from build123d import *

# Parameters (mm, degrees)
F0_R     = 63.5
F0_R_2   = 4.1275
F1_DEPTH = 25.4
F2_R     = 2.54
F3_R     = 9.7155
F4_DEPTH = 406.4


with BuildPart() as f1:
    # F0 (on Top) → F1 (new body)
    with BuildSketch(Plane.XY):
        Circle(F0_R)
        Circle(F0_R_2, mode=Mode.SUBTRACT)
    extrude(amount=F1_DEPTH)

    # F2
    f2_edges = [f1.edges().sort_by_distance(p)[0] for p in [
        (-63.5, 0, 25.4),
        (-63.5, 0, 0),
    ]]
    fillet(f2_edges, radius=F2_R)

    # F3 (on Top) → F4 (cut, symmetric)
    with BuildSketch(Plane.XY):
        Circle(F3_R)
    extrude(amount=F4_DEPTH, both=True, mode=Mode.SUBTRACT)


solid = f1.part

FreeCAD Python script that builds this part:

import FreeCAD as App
import Part
import Sketcher
Q = App.Units.Quantity


def edges_at(feature, points):
    """Names of the edges that pass closest to the given points."""
    edges = feature.Shape.Edges
    near = lambda p: min(range(len(edges)), key=lambda i: edges[i].distToShape(Part.Vertex(*p))[0])
    return sorted({f"Edge{near(p) + 1}" for p in points})

doc = App.newDocument("Part")
body = doc.addObject("PartDesign::Body", "Body")

# Sketch on XY plane
sketch1 = body.newObject("Sketcher::SketchObject", "Sketch")
sketch1.AttachmentSupport = (doc.getObject("XY_Plane"), [""])
sketch1.MapMode = "FlatFace"
sketch1.addGeometry(Part.Circle(App.Vector(0, 0, 0), App.Vector(0, 0, 1), 63.5), False)
sketch1.addGeometry(Part.Circle(App.Vector(0, 0, 0), App.Vector(0, 0, 1), 4.1), False)
sketch1.addConstraint(Sketcher.Constraint("Coincident", 0, 3, -1, 1))
sketch1.addConstraint(Sketcher.Constraint("Coincident", 1, 3, -1, 1))
sketch1.addConstraint(Sketcher.Constraint("Diameter", 0, Q("5 in")))
sketch1.addConstraint(Sketcher.Constraint("Diameter", 1, Q("0.325 in")))
pad1 = body.newObject("PartDesign::Pad", "Pad")
pad1.Profile = sketch1
pad1.Length = Q("1 in")
doc.recompute()

fillet = body.newObject("PartDesign::Fillet", "Fillet")
fillet.Base = (pad1, edges_at(pad1, [(-63.5, 0, 25.4), (-63.5, 0, 0)]))
fillet.Radius = Q("0.1 in")

# Sketch on XY plane
sketch2 = body.newObject("Sketcher::SketchObject", "Sketch001")
sketch2.AttachmentSupport = (doc.getObject("XY_Plane"), [""])
sketch2.MapMode = "FlatFace"
sketch2.addGeometry(Part.Circle(App.Vector(0, 0, 0), App.Vector(0, 0, 1), 10), False)
sketch2.addConstraint(Sketcher.Constraint("Coincident", 0, 3, -1, 1))
sketch2.addConstraint(Sketcher.Constraint("Diameter", 0, Q("0.765 in")))
pocket1 = body.newObject("PartDesign::Pocket", "Pocket")
pocket1.Profile = sketch2
pocket1.Length = Q("32 in")
pocket1.Midplane = True

doc.recompute()
